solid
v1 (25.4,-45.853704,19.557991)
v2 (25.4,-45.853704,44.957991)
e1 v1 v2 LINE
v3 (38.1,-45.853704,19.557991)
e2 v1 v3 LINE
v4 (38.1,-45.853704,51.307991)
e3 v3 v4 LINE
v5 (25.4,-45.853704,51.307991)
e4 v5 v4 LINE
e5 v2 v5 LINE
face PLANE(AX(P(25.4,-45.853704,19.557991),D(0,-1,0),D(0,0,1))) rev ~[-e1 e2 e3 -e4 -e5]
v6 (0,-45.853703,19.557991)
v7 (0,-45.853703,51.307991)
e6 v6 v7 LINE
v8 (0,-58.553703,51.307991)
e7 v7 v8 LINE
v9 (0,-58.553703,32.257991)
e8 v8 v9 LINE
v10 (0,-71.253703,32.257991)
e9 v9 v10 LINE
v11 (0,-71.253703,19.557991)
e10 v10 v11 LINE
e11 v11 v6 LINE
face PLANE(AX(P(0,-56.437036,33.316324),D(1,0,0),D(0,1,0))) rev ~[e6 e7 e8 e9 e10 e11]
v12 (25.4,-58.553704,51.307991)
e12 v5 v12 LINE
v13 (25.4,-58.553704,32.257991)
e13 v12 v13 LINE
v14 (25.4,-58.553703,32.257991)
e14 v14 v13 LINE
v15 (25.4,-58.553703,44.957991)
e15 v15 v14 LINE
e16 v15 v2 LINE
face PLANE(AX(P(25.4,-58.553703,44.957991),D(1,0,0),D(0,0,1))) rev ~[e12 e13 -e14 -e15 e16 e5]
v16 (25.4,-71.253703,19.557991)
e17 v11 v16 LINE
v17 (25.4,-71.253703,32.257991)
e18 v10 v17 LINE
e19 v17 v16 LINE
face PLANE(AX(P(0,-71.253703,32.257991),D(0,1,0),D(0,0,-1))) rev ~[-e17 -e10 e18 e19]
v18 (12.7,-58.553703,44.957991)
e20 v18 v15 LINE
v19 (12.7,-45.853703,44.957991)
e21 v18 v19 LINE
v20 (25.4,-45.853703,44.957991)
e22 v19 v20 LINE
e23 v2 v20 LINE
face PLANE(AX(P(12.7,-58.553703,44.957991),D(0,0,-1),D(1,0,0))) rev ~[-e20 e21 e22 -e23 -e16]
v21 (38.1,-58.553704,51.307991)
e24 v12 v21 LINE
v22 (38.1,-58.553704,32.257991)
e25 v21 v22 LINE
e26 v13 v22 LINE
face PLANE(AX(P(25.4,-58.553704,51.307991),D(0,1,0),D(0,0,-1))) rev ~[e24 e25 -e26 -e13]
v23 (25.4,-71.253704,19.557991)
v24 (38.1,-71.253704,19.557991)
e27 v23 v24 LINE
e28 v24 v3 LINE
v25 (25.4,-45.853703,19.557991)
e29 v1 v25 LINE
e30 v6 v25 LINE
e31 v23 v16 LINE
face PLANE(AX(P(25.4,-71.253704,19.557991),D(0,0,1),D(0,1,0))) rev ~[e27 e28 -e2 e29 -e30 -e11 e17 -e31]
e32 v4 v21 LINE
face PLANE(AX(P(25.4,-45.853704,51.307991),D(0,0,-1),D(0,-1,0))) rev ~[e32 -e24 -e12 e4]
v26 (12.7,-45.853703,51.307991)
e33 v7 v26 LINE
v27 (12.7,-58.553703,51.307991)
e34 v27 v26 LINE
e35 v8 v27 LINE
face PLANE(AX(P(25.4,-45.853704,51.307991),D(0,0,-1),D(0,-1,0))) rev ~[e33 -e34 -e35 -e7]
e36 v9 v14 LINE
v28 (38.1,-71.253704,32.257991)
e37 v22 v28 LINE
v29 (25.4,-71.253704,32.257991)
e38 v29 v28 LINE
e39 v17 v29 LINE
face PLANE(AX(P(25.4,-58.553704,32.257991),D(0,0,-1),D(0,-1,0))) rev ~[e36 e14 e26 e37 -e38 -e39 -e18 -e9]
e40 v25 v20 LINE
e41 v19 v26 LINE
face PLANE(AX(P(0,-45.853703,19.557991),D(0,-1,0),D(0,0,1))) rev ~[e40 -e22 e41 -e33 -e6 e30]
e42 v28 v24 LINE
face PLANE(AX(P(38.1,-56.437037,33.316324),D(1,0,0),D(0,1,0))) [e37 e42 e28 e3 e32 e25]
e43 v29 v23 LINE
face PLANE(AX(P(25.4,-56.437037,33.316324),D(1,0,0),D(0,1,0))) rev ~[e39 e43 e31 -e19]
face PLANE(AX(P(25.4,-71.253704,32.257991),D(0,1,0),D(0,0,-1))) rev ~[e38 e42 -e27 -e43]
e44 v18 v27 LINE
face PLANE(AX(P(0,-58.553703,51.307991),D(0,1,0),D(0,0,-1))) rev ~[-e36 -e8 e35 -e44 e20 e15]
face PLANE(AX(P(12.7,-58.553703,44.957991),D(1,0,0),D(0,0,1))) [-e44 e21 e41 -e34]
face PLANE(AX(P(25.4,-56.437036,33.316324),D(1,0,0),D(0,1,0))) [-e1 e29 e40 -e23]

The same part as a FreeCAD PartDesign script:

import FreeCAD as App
import Part
import Sketcher

V = App.Vector
Q = App.Units.Quantity

doc = App.newDocument("Part")
params = doc.addObject("Spreadsheet::Sheet", "Params")
for row, (alias, value) in enumerate([
    ("sketch1_width", "1 in"),
    ("sketch1_height", "0.75 in"),
    ("pad1_length", "1 in"),
    ("sketch2_width", "1 in"),
    ("sketch2_height", "0.75 in"),
    ("pad2_length", "0.5 in"),
    ("sketch3_width", "0.5 in"),
    ("sketch3_height", "0.25 in"),
], start=1):
    params.set(f"A{row}", alias)
    params.set(f"B{row}", "=" + value)
    params.setAlias(f"B{row}", alias)

body = doc.addObject("PartDesign::Body", "Body")

# Sketch on YZ plane
sketch1 = body.newObject("Sketcher::SketchObject", "Sketch")
sketch1.AttachmentSupport = (doc.getObject("YZ_Plane"), [""])
sketch1.MapMode = "FlatFace"
sketch1.addGeometry([
    Part.LineSegment(V(-46, 51, 0), V(-59, 51, 0)),  # 0
    Part.LineSegment(V(-59, 51, 0), V(-59, 32, 0)),  # 1
    Part.LineSegment(V(-59, 32, 0), V(-71, 32, 0)),  # 2
    Part.LineSegment(V(-71, 32, 0), V(-71, 20, 0)),  # 3
    Part.LineSegment(V(-71, 20, 0), V(-46, 20, 0)),  # 4
    Part.LineSegment(V(-46, 20, 0), V(-46, 51, 0)),  # 5
], False)
sketch1.addConstraint([
    Sketcher.Constraint("Coincident", 0, 2, 1, 1),
    Sketcher.Constraint("Coincident", 1, 2, 2, 1),
    Sketcher.Constraint("Coincident", 2, 2, 3, 1),
    Sketcher.Constraint("Coincident", 3, 2, 4, 1),
    Sketcher.Constraint("Coincident", 4, 2, 5, 1),
    Sketcher.Constraint("Coincident", 5, 2, 0, 1),
    Sketcher.Constraint("Horizontal", 0),
    Sketcher.Constraint("Vertical", 1),
    Sketcher.Constraint("Horizontal", 2),
    Sketcher.Constraint("Vertical", 3),
    Sketcher.Constraint("Horizontal", 4),
    Sketcher.Constraint("Vertical", 5),
    Sketcher.Constraint("Equal", 0, 2),
    Sketcher.Constraint("Equal", 2, 3),
    Sketcher.Constraint("DistanceX", 4, 1, 4, 2, Q("1 in")),
    Sketcher.Constraint("DistanceY", 1, 2, 1, 1, Q("0.75 in")),
    Sketcher.Constraint("DistanceY", -1, 1, 0, 2, 51.307991),
    Sketcher.Constraint("DistanceX", 0, 2, -1, 1, 58.553703),
])
sketch1.setExpression("Constraints[14]", "Params.sketch1_width")
sketch1.setExpression("Constraints[15]", "Params.sketch1_height")
pad1 = body.newObject("PartDesign::Pad", "Pad")
pad1.Profile = sketch1
pad1.setExpression("Length", "Params.pad1_length")

# Sketch on YZ plane
sketch2 = body.newObject("Sketcher::SketchObject", "Sketch001")
sketch2.AttachmentSupport = (doc.getObject("YZ_Plane"), [""])
sketch2.MapMode = "FlatFace"
sketch2.AttachmentOffset = App.Placement(V(0, 0, 1 * 25.4), App.Rotation())
sketch2.addGeometry([
    Part.LineSegment(V(-46, 51, 0), V(-59, 51, 0)),  # 0
    Part.LineSegment(V(-59, 51, 0), V(-59, 32, 0)),  # 1
    Part.LineSegment(V(-59, 32, 0), V(-71, 32, 0)),  # 2
    Part.LineSegment(V(-71, 32, 0), V(-71, 20, 0)),  # 3
    Part.LineSegment(V(-71, 20, 0), V(-46, 20, 0)),  # 4
    Part.LineSegment(V(-46, 20, 0), V(-46, 51, 0)),  # 5
], False)
sketch2.addConstraint([
    Sketcher.Constraint("Coincident", 0, 2, 1, 1),
    Sketcher.Constraint("Coincident", 1, 2, 2, 1),
    Sketcher.Constraint("Coincident", 2, 2, 3, 1),
    Sketcher.Constraint("Coincident", 3, 2, 4, 1),
    Sketcher.Constraint("Coincident", 4, 2, 5, 1),
    Sketcher.Constraint("Coincident", 5, 2, 0, 1),
    Sketcher.Constraint("Horizontal", 0),
    Sketcher.Constraint("Vertical", 1),
    Sketcher.Constraint("Horizontal", 2),
    Sketcher.Constraint("Vertical", 3),
    Sketcher.Constraint("Horizontal", 4),
    Sketcher.Constraint("Vertical", 5),
    Sketcher.Constraint("Equal", 0, 2),
    Sketcher.Constraint("Equal", 2, 3),
    Sketcher.Constraint("DistanceX", 4, 1, 4, 2, Q("1 in")),
    Sketcher.Constraint("DistanceY", 1, 2, 1, 1, Q("0.75 in")),
    Sketcher.Constraint("DistanceY", -1, 1, 0, 2, 51.307991),
    Sketcher.Constraint("DistanceX", 0, 2, -1, 1, 58.553704),
])
sketch2.setExpression("Constraints[14]", "Params.sketch2_width")
sketch2.setExpression("Constraints[15]", "Params.sketch2_height")
pad2 = body.newObject("PartDesign::Pad", "Pad001")
pad2.Profile = sketch2
pad2.setExpression("Length", "Params.pad2_length")

# Sketch on XZ plane
sketch3 = body.newObject("Sketcher::SketchObject", "Sketch002")
sketch3.AttachmentSupport = (doc.getObject("XZ_Plane"), [""])
sketch3.MapMode = "FlatFace"
sketch3.AttachmentOffset = App.Placement(V(0, 0, 58.553703), App.Rotation())
sketch3.addGeometry([
    Part.LineSegment(V(13, 51, 0), V(13, 45, 0)),
    Part.LineSegment(V(13, 45, 0), V(25, 45, 0)),
    Part.LineSegment(V(25, 45, 0), V(25, 51, 0)),
    Part.LineSegment(V(25, 51, 0), V(13, 51, 0)),
], False)
sketch3.addConstraint([
    Sketcher.Constraint("Coincident", 0, 2, 1, 1),
    Sketcher.Constraint("Coincident", 1, 2, 2, 1),
    Sketcher.Constraint("Coincident", 2, 2, 3, 1),
    Sketcher.Constraint("Coincident", 3, 2, 0, 1),
    Sketcher.Constraint("Vertical", 0),
    Sketcher.Constraint("Horizontal", 1),
    Sketcher.Constraint("Vertical", 2),
    Sketcher.Constraint("Horizontal", 3),
    Sketcher.Constraint("DistanceX", 1, 1, 1, 2, Q("0.5 in")),
    Sketcher.Constraint("DistanceX", -1, 1, 1, 2, Q("1 in")),
    Sketcher.Constraint("DistanceY", 0, 2, 0, 1, Q("0.25 in")),
    Sketcher.Constraint("DistanceY", -1, 1, 0, 2, 44.957991),
])
sketch3.setExpression("Constraints[8]", "Params.sketch3_width")
sketch3.setExpression("Constraints[10]", "Params.sketch3_height")
pocket1 = body.newObject("PartDesign::Pocket", "Pocket")
pocket1.Profile = sketch3
pocket1.Type = "ThroughAll"

doc.recompute()
